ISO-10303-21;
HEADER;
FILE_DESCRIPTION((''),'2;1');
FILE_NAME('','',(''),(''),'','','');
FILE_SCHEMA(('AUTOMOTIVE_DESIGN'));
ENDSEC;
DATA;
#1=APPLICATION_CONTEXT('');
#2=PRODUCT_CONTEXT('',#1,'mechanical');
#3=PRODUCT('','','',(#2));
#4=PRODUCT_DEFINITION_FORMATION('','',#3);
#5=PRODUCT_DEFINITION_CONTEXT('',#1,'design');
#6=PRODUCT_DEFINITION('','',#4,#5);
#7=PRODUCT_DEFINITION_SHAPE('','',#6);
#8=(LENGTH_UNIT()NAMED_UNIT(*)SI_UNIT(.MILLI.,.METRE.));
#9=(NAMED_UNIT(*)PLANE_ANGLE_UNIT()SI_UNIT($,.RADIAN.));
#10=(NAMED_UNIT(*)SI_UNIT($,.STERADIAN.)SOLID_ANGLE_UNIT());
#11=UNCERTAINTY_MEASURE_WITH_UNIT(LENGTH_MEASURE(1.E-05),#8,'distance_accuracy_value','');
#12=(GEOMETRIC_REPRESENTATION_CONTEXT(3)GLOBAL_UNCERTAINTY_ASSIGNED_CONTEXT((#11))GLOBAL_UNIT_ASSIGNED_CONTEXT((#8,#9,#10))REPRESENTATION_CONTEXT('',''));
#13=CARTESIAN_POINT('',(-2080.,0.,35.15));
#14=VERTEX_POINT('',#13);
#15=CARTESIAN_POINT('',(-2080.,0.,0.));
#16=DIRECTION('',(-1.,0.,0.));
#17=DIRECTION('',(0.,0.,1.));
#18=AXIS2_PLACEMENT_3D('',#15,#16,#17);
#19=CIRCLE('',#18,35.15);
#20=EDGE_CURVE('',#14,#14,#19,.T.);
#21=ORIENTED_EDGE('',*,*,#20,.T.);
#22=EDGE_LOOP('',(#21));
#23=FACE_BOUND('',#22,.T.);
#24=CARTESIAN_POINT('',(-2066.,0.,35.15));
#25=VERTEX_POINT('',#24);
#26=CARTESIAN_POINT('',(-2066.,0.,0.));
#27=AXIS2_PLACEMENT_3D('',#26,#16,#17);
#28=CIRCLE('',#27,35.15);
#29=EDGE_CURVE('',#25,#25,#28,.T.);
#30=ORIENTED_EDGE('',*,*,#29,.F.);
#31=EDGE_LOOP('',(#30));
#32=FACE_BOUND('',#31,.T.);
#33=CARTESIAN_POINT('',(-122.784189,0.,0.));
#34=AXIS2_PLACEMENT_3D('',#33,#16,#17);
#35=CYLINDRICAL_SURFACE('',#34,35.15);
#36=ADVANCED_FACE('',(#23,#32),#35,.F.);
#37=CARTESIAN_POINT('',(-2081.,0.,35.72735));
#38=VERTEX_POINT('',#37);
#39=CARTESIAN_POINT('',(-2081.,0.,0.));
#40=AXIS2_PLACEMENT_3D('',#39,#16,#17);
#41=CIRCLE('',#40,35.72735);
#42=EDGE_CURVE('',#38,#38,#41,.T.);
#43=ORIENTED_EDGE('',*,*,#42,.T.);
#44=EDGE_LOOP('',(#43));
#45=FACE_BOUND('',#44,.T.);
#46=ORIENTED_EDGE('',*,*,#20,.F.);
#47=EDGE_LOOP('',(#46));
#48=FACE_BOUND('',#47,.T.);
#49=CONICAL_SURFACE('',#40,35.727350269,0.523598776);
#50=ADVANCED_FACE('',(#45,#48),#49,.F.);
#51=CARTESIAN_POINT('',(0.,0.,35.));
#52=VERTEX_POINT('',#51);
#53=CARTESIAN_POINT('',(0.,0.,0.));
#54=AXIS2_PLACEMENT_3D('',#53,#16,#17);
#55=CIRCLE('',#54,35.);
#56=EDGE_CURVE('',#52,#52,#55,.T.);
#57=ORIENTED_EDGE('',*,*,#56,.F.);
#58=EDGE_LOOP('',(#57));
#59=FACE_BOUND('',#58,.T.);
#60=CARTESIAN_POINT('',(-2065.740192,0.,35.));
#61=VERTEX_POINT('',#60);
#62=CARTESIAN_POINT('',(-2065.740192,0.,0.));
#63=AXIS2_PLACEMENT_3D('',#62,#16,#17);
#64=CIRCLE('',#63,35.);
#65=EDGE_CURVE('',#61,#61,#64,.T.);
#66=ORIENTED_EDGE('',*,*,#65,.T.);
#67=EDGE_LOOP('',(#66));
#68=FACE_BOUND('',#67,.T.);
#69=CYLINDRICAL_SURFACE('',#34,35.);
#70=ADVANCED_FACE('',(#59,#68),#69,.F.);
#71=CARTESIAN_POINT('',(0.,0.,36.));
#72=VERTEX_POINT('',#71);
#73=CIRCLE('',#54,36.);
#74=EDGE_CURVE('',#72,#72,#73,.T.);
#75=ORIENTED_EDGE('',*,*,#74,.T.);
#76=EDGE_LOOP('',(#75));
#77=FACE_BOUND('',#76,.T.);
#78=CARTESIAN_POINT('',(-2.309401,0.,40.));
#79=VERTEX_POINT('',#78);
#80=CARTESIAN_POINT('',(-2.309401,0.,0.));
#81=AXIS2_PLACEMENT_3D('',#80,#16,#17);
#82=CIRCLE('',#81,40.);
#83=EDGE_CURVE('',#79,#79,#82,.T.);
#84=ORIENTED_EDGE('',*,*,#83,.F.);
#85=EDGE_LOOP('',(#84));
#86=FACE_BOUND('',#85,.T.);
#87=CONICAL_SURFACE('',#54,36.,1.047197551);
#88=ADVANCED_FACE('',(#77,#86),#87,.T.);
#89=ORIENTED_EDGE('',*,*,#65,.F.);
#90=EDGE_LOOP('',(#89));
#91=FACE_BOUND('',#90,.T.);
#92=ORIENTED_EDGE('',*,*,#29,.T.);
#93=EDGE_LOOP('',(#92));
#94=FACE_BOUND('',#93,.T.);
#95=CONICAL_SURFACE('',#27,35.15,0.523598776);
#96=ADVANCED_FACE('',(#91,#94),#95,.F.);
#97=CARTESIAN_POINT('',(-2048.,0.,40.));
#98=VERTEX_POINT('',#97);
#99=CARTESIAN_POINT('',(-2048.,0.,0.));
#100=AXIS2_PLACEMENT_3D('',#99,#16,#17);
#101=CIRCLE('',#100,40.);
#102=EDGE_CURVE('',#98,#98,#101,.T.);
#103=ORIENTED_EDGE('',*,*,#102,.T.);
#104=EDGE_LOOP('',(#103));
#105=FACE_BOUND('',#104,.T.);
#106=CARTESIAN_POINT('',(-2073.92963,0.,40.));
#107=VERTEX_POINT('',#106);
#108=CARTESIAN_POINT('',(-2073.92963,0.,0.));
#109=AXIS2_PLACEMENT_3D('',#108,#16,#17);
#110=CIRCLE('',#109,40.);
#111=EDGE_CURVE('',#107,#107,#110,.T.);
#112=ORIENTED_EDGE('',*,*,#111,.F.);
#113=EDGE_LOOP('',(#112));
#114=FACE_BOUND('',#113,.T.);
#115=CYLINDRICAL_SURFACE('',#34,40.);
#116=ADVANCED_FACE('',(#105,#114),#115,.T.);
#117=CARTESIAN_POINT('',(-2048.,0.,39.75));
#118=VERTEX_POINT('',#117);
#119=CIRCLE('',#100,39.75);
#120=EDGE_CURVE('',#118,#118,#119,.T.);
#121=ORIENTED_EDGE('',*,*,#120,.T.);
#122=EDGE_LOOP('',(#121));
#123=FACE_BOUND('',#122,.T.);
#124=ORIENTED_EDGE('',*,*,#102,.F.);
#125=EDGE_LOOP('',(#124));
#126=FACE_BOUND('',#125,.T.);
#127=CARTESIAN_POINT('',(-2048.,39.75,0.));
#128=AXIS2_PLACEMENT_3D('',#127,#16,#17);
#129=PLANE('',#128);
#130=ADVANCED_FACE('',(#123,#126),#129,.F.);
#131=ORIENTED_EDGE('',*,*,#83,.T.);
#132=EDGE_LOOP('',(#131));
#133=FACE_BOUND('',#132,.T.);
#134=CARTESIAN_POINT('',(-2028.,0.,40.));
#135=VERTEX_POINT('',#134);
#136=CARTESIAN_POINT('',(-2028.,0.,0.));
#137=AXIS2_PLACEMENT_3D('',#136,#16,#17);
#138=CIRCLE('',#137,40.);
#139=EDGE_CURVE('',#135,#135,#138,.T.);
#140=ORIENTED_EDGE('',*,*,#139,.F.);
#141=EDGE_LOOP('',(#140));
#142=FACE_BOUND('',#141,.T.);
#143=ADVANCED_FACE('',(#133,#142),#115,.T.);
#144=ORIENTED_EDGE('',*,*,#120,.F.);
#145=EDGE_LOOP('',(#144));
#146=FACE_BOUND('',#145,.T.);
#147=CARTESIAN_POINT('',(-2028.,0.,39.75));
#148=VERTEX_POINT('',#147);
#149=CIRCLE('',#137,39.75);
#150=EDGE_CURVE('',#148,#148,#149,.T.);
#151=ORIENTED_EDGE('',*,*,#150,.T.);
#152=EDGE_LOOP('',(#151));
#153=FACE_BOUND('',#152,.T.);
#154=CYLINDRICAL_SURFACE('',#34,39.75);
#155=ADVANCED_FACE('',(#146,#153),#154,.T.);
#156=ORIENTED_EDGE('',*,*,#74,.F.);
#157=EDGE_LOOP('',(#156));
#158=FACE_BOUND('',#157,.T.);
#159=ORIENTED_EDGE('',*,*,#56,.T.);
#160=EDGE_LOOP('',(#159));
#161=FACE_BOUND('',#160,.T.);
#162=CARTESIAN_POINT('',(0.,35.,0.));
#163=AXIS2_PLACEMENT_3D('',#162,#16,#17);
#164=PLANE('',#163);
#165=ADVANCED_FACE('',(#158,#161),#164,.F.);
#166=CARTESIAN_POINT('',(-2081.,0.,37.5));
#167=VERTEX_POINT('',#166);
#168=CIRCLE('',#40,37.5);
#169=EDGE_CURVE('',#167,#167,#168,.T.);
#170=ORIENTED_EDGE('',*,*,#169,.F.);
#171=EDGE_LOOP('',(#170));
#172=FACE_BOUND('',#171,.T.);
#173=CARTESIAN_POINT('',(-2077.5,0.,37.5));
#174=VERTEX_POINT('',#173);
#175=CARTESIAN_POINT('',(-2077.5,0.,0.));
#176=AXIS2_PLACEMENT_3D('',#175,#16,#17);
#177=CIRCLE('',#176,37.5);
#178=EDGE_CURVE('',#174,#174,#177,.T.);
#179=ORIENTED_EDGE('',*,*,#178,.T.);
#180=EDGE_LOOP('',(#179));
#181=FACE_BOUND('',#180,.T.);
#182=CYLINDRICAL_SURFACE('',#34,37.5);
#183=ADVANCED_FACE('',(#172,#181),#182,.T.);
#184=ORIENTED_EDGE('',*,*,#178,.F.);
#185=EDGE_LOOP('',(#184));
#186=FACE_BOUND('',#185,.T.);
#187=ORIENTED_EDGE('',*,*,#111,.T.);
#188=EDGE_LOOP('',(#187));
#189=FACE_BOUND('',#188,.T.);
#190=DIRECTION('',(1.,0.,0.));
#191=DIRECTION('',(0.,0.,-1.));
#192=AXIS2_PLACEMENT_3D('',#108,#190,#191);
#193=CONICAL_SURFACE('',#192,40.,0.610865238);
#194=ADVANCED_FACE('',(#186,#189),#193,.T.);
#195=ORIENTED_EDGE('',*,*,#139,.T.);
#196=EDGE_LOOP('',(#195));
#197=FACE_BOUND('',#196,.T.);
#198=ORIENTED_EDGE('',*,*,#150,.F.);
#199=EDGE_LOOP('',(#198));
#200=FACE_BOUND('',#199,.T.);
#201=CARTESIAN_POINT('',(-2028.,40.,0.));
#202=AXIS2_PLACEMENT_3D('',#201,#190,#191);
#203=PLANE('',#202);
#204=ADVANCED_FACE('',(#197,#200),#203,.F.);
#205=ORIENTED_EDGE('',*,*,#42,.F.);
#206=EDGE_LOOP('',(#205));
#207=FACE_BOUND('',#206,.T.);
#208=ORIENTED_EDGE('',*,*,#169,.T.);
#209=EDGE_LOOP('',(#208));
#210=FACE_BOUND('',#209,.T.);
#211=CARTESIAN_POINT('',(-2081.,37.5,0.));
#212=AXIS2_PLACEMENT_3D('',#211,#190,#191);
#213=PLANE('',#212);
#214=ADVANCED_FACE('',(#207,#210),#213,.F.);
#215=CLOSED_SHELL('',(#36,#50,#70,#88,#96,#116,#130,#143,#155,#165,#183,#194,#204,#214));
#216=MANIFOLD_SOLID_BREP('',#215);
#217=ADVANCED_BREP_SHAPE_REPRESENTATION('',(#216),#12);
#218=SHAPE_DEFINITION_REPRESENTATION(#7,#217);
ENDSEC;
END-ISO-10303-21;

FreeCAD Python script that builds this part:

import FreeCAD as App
import Part
import Sketcher
Q = App.Units.Quantity

doc = App.newDocument("Part")
body = doc.addObject("PartDesign::Body", "Body")

# Sketch on XY plane
sketch1 = body.newObject("Sketcher::SketchObject", "Sketch")
sketch1.AttachmentSupport = (doc.getObject("XY_Plane"), [""])
sketch1.MapMode = "FlatFace"
sketch1.addGeometry([
    Part.LineSegment(App.Vector(0, 35, 0), App.Vector(0, 36, 0)),  # 0
    Part.LineSegment(App.Vector(0, 36, 0), App.Vector(-2.31, 40, 0)),  # 1
    Part.LineSegment(App.Vector(-2.31, 40, 0), App.Vector(-2028, 40, 0)),  # 2
    Part.LineSegment(App.Vector(-2028, 40, 0), App.Vector(-2028, 39.75, 0)),  # 3
    Part.LineSegment(App.Vector(-2028, 39.75, 0), App.Vector(-2048, 39.75, 0)),  # 4
    Part.LineSegment(App.Vector(-2048, 39.75, 0), App.Vector(-2048, 40, 0)),  # 5
    Part.LineSegment(App.Vector(-2048, 40, 0), App.Vector(-2073.93, 40, 0)),  # 6
    Part.LineSegment(App.Vector(-2073.93, 40, 0), App.Vector(-2077.5, 37.5, 0)),  # 7
    Part.LineSegment(App.Vector(-2077.5, 37.5, 0), App.Vector(-2081, 37.5, 0)),  # 8
    Part.LineSegment(App.Vector(-2081, 37.5, 0), App.Vector(-2081, 35.73, 0)),  # 9
    Part.LineSegment(App.Vector(-2081, 35.73, 0), App.Vector(-2080, 35.15, 0)),  # 10
    Part.LineSegment(App.Vector(-2080, 35.15, 0), App.Vector(-2066, 35.15, 0)),  # 11
    Part.LineSegment(App.Vector(-2066, 35.15, 0), App.Vector(-2065.74, 35, 0)),  # 12
    Part.LineSegment(App.Vector(-2065.74, 35, 0), App.Vector(0, 35, 0)),  # 13
], False)
sketch1.addConstraint([
    Sketcher.Constraint("Coincident", 0, 2, 1, 1),
    Sketcher.Constraint("Coincident", 1, 2, 2, 1),
    Sketcher.Constraint("Coincident", 2, 2, 3, 1),
    Sketcher.Constraint("Coincident", 3, 2, 4, 1),
    Sketcher.Constraint("Coincident", 4, 2, 5, 1),
    Sketcher.Constraint("Coincident", 5, 2, 6, 1),
    Sketcher.Constraint("Coincident", 6, 2, 7, 1),
    Sketcher.Constraint("Coincident", 7, 2, 8, 1),
    Sketcher.Constraint("Coincident", 8, 2, 9, 1),
    Sketcher.Constraint("Coincident", 9, 2, 10, 1),
    Sketcher.Constraint("Coincident", 10, 2, 11, 1),
    Sketcher.Constraint("Coincident", 11, 2, 12, 1),
    Sketcher.Constraint("Coincident", 12, 2, 13, 1),
    Sketcher.Constraint("Coincident", 13, 2, 0, 1),
    Sketcher.Constraint("Vertical", 0),
    Sketcher.Constraint("Horizontal", 2),
    Sketcher.Constraint("Vertical", 3),
    Sketcher.Constraint("Horizontal", 4),
    Sketcher.Constraint("Vertical", 5),
    Sketcher.Constraint("Horizontal", 6),
    Sketcher.Constraint("Horizontal", 8),
    Sketcher.Constraint("Vertical", 9),
    Sketcher.Constraint("Horizontal", 11),
    Sketcher.Constraint("Horizontal", 13),
    Sketcher.Constraint("PointOnObject", 0, 2, -2),
    Sketcher.Constraint("Parallel", 10, 12),
    Sketcher.Constraint("Horizontal", 2, 2, 5, 2),
    Sketcher.Constraint("DistanceX", 4, 2, 4, 1, Q("20 mm")),
    Sketcher.Constraint("DistanceX", 11, 1, 11, 2, Q("14 mm")),
    Sketcher.Constraint("DistanceY", 0, 1, 0, 2, Q("1 mm")),
    Sketcher.Constraint("Angle", 1, Q("120 deg")),
    Sketcher.Constraint("Angle", 7, Q("-145 deg")),
    Sketcher.Constraint("Angle", 10, Q("-30 deg")),
    Sketcher.Constraint("DistanceX", 8, 2, 8, 1, Q("3.5 mm")),
    Sketcher.Constraint("DistanceY", -1, 1, 0, 2, Q("36 mm")),
    Sketcher.Constraint("DistanceY", -1, 1, 1, 2, Q("40 mm")),
    Sketcher.Constraint("DistanceX", 2, 2, -1, 1, Q("2028 mm")),
    Sketcher.Constraint("DistanceX", 8, 2, -1, 1, Q("2081 mm")),
    Sketcher.Constraint("DistanceX", 10, 2, -1, 1, Q("2080 mm")),
    Sketcher.Constraint("Distance", 12, Q("0.3 mm")),
    Sketcher.Constraint("DistanceY", 3, 2, 3, 1, Q("0.25 mm")),
    Sketcher.Constraint("DistanceY", -1, 1, 7, 2, Q("37.5 mm")),
])
revolution = body.newObject("PartDesign::Revolution", "Revolution")
revolution.Profile = sketch1
revolution.ReferenceAxis = (sketch1, ["H_Axis"])
revolution.Angle = 360

doc.recompute()
